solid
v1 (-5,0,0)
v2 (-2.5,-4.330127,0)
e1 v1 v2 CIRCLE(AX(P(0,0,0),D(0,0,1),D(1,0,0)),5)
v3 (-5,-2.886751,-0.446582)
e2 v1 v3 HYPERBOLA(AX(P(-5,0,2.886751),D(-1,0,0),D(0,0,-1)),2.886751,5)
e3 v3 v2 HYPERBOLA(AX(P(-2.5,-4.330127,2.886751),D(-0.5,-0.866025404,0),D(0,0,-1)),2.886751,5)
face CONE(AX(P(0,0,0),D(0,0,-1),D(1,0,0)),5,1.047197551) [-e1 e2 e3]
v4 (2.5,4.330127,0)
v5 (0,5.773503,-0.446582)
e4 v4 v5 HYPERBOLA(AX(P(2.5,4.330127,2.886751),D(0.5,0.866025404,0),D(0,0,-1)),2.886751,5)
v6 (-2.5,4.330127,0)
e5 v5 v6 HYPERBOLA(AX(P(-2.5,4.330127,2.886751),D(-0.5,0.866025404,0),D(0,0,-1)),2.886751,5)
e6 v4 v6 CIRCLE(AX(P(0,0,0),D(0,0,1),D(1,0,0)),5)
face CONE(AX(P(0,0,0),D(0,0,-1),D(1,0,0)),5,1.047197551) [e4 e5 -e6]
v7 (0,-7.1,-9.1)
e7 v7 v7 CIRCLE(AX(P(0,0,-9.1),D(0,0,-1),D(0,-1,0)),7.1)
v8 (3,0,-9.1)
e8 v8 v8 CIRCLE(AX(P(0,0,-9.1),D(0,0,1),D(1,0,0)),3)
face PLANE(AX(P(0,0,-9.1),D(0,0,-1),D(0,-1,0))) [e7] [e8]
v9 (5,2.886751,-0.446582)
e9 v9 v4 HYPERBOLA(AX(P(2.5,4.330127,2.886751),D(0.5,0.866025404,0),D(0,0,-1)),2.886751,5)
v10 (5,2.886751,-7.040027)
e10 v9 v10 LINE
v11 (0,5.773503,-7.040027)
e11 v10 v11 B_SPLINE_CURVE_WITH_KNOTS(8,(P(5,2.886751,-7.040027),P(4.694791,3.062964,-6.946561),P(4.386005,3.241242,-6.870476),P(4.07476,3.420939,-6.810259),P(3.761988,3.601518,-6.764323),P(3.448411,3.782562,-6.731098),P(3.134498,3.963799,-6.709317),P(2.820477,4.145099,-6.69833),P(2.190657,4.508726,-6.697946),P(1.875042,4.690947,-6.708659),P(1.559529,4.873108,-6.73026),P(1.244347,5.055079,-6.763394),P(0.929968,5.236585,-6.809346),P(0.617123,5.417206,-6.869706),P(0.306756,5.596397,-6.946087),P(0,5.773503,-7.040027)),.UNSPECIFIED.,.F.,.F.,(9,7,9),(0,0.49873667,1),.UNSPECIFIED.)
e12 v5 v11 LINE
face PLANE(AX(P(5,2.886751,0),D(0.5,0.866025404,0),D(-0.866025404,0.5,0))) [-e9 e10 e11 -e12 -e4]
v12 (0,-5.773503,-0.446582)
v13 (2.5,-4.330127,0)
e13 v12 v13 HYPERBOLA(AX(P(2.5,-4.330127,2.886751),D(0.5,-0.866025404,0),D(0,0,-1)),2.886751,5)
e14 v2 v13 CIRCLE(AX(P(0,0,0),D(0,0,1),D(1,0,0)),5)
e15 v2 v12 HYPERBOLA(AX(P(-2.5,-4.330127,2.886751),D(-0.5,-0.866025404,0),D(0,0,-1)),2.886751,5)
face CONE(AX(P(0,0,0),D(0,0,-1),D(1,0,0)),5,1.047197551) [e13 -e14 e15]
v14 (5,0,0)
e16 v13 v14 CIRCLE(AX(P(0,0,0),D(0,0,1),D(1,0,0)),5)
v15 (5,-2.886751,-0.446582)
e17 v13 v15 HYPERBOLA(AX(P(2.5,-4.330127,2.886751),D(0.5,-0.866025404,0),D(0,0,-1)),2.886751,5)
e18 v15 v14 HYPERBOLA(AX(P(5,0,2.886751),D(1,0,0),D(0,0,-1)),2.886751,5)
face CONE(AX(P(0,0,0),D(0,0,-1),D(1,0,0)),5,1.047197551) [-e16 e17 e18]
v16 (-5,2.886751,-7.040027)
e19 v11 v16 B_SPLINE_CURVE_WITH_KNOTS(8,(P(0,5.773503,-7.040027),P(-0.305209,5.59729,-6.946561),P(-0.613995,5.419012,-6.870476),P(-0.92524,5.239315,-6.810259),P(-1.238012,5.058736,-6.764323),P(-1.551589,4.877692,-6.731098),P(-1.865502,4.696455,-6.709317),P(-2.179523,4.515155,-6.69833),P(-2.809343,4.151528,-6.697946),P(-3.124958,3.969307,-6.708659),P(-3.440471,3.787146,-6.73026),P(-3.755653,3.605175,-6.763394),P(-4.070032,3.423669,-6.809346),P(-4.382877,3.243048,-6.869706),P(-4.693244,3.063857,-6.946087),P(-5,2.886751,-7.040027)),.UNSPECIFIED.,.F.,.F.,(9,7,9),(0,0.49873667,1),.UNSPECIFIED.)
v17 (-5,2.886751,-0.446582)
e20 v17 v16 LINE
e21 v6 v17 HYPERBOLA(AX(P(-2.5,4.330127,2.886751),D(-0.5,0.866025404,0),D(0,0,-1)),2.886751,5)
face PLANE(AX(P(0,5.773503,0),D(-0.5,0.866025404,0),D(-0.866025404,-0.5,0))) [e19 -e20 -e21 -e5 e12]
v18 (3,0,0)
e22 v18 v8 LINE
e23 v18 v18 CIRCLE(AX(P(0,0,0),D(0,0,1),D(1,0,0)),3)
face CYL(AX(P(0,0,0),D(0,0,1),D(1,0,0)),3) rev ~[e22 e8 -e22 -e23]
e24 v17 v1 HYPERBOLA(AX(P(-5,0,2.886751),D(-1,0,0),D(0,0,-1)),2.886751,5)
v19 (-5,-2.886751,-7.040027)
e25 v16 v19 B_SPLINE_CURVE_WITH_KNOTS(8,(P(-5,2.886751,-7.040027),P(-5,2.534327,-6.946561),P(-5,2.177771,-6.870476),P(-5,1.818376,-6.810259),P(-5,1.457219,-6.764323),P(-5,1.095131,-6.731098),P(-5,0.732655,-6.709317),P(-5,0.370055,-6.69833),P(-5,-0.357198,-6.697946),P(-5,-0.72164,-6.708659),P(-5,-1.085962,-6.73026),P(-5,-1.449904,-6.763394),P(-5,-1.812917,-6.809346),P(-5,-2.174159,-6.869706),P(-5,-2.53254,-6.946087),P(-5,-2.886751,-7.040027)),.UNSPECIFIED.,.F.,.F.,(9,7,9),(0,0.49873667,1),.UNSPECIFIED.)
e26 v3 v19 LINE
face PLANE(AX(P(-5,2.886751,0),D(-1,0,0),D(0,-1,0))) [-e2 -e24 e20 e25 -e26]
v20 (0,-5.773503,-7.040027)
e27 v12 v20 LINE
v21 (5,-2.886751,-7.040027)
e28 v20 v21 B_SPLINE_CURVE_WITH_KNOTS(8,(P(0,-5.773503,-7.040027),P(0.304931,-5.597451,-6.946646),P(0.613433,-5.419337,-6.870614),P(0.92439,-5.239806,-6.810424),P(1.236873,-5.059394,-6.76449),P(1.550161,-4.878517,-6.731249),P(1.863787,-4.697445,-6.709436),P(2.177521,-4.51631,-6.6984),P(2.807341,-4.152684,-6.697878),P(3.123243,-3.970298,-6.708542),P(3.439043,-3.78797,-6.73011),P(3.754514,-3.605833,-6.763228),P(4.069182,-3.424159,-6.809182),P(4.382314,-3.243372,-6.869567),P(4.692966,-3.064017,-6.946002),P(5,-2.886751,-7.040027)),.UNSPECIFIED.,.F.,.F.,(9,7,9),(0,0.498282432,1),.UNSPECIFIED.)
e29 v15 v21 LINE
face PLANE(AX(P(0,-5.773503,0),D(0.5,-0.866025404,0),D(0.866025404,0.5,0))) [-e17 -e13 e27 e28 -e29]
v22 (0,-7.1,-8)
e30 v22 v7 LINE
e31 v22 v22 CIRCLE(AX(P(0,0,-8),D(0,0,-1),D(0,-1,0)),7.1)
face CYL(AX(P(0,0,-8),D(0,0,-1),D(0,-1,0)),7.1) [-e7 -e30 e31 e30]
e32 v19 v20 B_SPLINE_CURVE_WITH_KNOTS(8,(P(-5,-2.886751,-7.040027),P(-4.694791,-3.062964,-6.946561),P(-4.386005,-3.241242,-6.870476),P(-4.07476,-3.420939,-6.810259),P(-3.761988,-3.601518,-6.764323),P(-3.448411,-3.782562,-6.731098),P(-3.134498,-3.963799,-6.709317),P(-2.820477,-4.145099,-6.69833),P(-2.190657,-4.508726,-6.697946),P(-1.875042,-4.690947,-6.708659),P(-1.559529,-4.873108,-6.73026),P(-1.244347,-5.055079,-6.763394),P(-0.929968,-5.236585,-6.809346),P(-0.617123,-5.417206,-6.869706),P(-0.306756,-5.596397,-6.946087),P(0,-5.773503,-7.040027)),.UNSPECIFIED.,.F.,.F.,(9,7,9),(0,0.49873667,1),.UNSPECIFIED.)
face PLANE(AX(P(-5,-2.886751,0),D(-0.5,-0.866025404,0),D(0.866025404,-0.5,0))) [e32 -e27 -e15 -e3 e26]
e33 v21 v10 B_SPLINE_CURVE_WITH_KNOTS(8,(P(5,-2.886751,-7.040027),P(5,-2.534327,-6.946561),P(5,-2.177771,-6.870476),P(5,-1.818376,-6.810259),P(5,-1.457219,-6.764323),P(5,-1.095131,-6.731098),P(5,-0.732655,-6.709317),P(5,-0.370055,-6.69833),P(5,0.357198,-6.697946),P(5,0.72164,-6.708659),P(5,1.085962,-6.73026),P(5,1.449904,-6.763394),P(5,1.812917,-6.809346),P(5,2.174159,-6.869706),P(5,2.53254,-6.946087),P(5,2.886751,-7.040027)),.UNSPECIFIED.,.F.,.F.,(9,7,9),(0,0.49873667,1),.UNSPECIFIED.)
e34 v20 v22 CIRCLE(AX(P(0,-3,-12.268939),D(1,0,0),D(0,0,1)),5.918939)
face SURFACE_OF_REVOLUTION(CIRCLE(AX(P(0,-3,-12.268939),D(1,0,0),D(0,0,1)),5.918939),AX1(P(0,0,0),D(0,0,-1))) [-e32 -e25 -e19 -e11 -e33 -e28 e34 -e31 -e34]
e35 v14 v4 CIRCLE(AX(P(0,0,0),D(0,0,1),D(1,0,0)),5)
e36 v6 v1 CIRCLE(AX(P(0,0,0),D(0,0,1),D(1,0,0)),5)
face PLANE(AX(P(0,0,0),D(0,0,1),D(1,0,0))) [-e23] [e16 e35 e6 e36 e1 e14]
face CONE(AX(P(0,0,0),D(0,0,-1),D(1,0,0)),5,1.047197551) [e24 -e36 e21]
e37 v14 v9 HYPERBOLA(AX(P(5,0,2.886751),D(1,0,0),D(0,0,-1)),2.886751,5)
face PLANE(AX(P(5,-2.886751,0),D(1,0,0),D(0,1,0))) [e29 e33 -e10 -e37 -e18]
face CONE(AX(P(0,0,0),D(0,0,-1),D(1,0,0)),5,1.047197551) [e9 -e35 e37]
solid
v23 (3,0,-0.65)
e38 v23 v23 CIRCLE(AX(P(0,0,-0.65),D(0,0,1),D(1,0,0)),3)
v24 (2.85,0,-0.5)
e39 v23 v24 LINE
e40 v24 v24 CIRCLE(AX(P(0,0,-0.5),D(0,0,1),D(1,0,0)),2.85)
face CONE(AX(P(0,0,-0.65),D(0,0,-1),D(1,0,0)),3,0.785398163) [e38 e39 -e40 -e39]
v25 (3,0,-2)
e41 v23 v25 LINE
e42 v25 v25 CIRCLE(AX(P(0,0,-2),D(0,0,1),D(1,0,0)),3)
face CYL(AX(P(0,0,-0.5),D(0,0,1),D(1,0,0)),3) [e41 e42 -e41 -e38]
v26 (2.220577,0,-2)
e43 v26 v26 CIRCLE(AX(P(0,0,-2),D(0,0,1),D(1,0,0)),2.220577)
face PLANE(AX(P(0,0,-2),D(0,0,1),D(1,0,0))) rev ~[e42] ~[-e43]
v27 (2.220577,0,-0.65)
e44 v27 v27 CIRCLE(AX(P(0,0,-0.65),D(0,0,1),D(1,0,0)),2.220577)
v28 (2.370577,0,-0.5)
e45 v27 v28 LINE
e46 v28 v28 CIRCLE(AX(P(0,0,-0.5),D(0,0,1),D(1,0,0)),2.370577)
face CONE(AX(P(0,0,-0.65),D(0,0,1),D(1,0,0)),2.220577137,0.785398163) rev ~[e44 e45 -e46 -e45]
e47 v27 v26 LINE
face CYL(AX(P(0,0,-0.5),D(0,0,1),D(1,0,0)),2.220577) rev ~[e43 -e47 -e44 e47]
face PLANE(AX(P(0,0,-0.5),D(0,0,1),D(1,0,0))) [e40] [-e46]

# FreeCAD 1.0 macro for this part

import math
import FreeCAD as App
import Part
import Sketcher
from FreeCAD import Vector
Q = App.Units.Quantity


def edges_at(feature, points):
    """Names of the edges that pass closest to the given points."""
    edges = feature.Shape.Edges
    near = lambda p: min(range(len(edges)), key=lambda i: edges[i].distToShape(Part.Vertex(*p))[0])
    return sorted({f"Edge{near(p) + 1}" for p in points})


def faces_at(feature, points):
    """Names of the faces that lie closest to the given points."""
    faces = feature.Shape.Faces
    near = lambda p: min(range(len(faces)), key=lambda i: faces[i].distToShape(Part.Vertex(*p))[0])
    return sorted({f"Face{near(p) + 1}" for p in points})


def add_polygon(sketch, points):
    """Adds a closed chain of lines whose ends are joined by coincident constraints."""
    first, n = sketch.GeometryCount, len(points)
    for a, b in zip(points, points[1:] + points[:1]):
        sketch.addGeometry(Part.LineSegment(App.Vector(*a, 0), App.Vector(*b, 0)), False)
    for i in range(n):
        sketch.addConstraint(Sketcher.Constraint("Coincident", first + i, 2, first + (i + 1) % n, 1))

doc = App.newDocument("Part")
params = doc.addObject("Spreadsheet::Sheet", "Params")
for row, (alias, value) in enumerate([
    ("sketch1_diameter", "6 mm"),
    ("pad1_length", "9.1 mm"),
    ("sketch2_diameter", "10 mm"),
    ("pad2_length", "12.880376 mm"),
    ("draft_angle", "60 deg"),
    ("sketch3_width", "4.1 mm"),
    ("sketch3_height", "1.1 mm"),
    ("sketch3_height2", "2.75 mm"),
    ("revolution_angle", "360 deg"),
    ("sketch4_diameter", "6 mm"),
    ("pad3_length", "1.5 mm"),
    ("chamfer_size", "0.15 mm"),
], start=1):
    params.set(f"A{row}", alias)
    params.set(f"B{row}", "=" + value)
    params.setAlias(f"B{row}", alias)

body = doc.addObject("PartDesign::Body", "Body")

# Sketch on XY plane
sketch1 = doc.addObject("Sketcher::SketchObject", "Sketch")
body.addObject(sketch1)
sketch1.AttachmentSupport = (doc.XY_Plane, [""])
sketch1.MapMode = "FlatFace"
add_polygon(sketch1, [(0, 5.8), (-5, 2.9), (-5, -2.9), (0, -5.8), (5, -2.9), (5, 2.9)])  # lines 0-5
sketch1.addGeometry(Part.Circle(Vector(0, 0, 0), Vector(0, 0, 1), 3), False)  # 6
sketch1.addConstraint(Sketcher.Constraint("Vertical", 1))
sketch1.addConstraint(Sketcher.Constraint("Vertical", 4))
sketch1.addConstraint(Sketcher.Constraint("Coincident", 6, 3, -1, 1))
sketch1.addConstraint(Sketcher.Constraint("Symmetric", 0, 2, 3, 2, -1, 1))
sketch1.addConstraint(Sketcher.Constraint("Symmetric", 2, 2, 5, 2, -1, 1))
sketch1.addConstraint(Sketcher.Constraint("PointOnObject", 2, 2, -2))
sketch1.addConstraint(Sketcher.Constraint("Parallel", 2, 5))
sketch1.addConstraint(Sketcher.Constraint("Horizontal", 1, 2, 3, 2))
sketch1.addConstraint(Sketcher.Constraint("Diameter", 6, 6.0))
sketch1.addConstraint(Sketcher.Constraint("Angle", 0, Q("-150 deg")))
sketch1.addConstraint(Sketcher.Constraint("DistanceX", 0, 2, -1, 1, 5.0))
sketch1.addConstraint(Sketcher.Constraint("DistanceY", 1, 2, 1, 1, 5.773503))
sketch1.setExpression("Constraints[14]", "Params.sketch1_diameter")
pad1 = doc.addObject("PartDesign::Pad", "Pad")
body.addObject(pad1)
pad1.Profile = sketch1
pad1.setExpression("Length", "Params.pad1_length")
pad1.Reversed = True
body2 = doc.addObject("PartDesign::Body", "Body001")

# Sketch on XY plane
sketch2 = doc.addObject("Sketcher::SketchObject", "Sketch001")
body2.addObject(sketch2)
sketch2.AttachmentSupport = (doc.getObject("XY_Plane001"), [""])
sketch2.MapMode = "FlatFace"
add_polygon(sketch2, [(-30, 31), (-30, -31), (30, -31), (30, 31)])  # lines 0-3
sketch2.addGeometry(Part.Circle(Vector(0, 0, 0), Vector(0, 0, 1), 5), False)  # 4
sketch2.addConstraint(Sketcher.Constraint("Vertical", 0))
sketch2.addConstraint(Sketcher.Constraint("Horizontal", 1))
sketch2.addConstraint(Sketcher.Constraint("Vertical", 2))
sketch2.addConstraint(Sketcher.Constraint("Horizontal", 3))
sketch2.addConstraint(Sketcher.Constraint("Coincident", 4, 3, -1, 1))
sketch2.addConstraint(Sketcher.Constraint("Symmetric", 0, 2, 2, 2, -1, 1))
sketch2.addConstraint(Sketcher.Constraint("Diameter", 4, 10.0))
sketch2.addConstraint(Sketcher.Constraint("DistanceX", 1, 1, 1, 2, 60.176))
sketch2.addConstraint(Sketcher.Constraint("DistanceY", 0, 2, 0, 1, 61.724))
sketch2.setExpression("Constraints[10]", "Params.sketch2_diameter")
pad2 = doc.addObject("PartDesign::Pad", "Pad001")
body2.addObject(pad2)
pad2.Profile = sketch2
pad2.setExpression("Length", "Params.pad2_length")
pad2.Reversed = True
doc.recompute()

draft = doc.addObject("PartDesign::Draft", "Draft")
body2.addObject(draft)
draft.Base = (pad2, faces_at(pad2, [
    (0, -30.862, -6.44),
    (30.088, 0, -6.44),
    (0, 30.862, -6.44),
    (-30.088, 0, -6.44),
    (-5, 0, -6.44),
]))
draft.NeutralPlane = (doc.getObject("XY_Plane001"), [""])
draft.setExpression("Angle", "Params.draft_angle")
draft.Reversed = True
doc.recompute()

boolean = doc.addObject("PartDesign::Boolean", "Boolean")
body.addObject(boolean)
boolean.Type = "Cut"
boolean.addObjects([body2])

# Sketch on YZ plane
sketch3 = doc.addObject("Sketcher::SketchObject", "Sketch002")
body.addObject(sketch3)
sketch3.AttachmentSupport = (doc.YZ_Plane, [""])
sketch3.MapMode = "FlatFace"
sketch3.addGeometry(Part.LineSegment(Vector(3, -9.1, 0), Vector(7.1, -9.1, 0)), False)
sketch3.addGeometry(Part.LineSegment(Vector(7.1, -9.1, 0), Vector(7.1, -8, 0)), False)
sketch3.addGeometry(Part.ArcOfCircle(Part.Circle(Vector(3, -12.3, 0), Vector(0, 0, 1), 5.9), math.radians(46), math.radians(90)), False)
sketch3.addGeometry(Part.LineSegment(Vector(3, -6.3, 0), Vector(3, -9.1, 0)), False)
sketch3.addConstraint(Sketcher.Constraint("Coincident", 0, 2, 1, 1))
sketch3.addConstraint(Sketcher.Constraint("Coincident", 1, 2, 2, 1))
sketch3.addConstraint(Sketcher.Constraint("Coincident", 2, 2, 3, 1))
sketch3.addConstraint(Sketcher.Constraint("Coincident", 3, 2, 0, 1))
sketch3.addConstraint(Sketcher.Constraint("Horizontal", 0))
sketch3.addConstraint(Sketcher.Constraint("Vertical", 1))
sketch3.addConstraint(Sketcher.Constraint("Vertical", 3))
sketch3.addConstraint(Sketcher.Constraint("DistanceX", 0, 1, 0, 2, 4.1))
sketch3.addConstraint(Sketcher.Constraint("DistanceY", 1, 1, 1, 2, 1.1))
sketch3.addConstraint(Sketcher.Constraint("DistanceX", -1, 1, 2, 3, 3.0))
sketch3.addConstraint(Sketcher.Constraint("DistanceY", 1, 2, -1, 1, 8.0))
sketch3.addConstraint(Sketcher.Constraint("DistanceX", -1, 1, 2, 2, 3.0))
sketch3.addConstraint(Sketcher.Constraint("DistanceY", 3, 2, 3, 1, 2.75))
sketch3.setExpression("Constraints[7]", "Params.sketch3_width")
sketch3.setExpression("Constraints[8]", "Params.sketch3_height")
sketch3.setExpression("Constraints[12]", "Params.sketch3_height2")
revolution = doc.addObject("PartDesign::Revolution", "Revolution")
body.addObject(revolution)
revolution.Profile = sketch3
revolution.ReferenceAxis = (sketch3, ["V_Axis"])
revolution.setExpression("Angle", "Params.revolution_angle")
body3 = doc.addObject("PartDesign::Body", "Body002")

# Sketch on XY plane
sketch4 = doc.addObject("Sketcher::SketchObject", "Sketch003")
body3.addObject(sketch4)
sketch4.AttachmentSupport = (doc.getObject("XY_Plane002"), [""])
sketch4.MapMode = "FlatFace"
sketch4.AttachmentOffset = App.Placement(Vector(0, 0, -0.5), App.Rotation())
sketch4.addGeometry(Part.Circle(Vector(0, 0, 0), Vector(0, 0, 1), 3), False)
sketch4.addGeometry(Part.Circle(Vector(0, 0, 0), Vector(0, 0, 1), 2.2), False)
sketch4.addConstraint(Sketcher.Constraint("Coincident", 0, 3, -1, 1))
sketch4.addConstraint(Sketcher.Constraint("Coincident", 1, 3, -1, 1))
sketch4.addConstraint(Sketcher.Constraint("Diameter", 0, 6.0))
sketch4.addConstraint(Sketcher.Constraint("Diameter", 1, 4.441154))
sketch4.setExpression("Constraints[2]", "Params.sketch4_diameter")
pad3 = doc.addObject("PartDesign::Pad", "Pad002")
body3.addObject(pad3)
pad3.Profile = sketch4
pad3.setExpression("Length", "Params.pad3_length")
pad3.Reversed = True
doc.recompute()

chamfer = doc.addObject("PartDesign::Chamfer", "Chamfer")
body3.addObject(chamfer)
chamfer.Base = (pad3, edges_at(pad3, [(-3, 0, -0.5), (-2.221, 0, -0.5)]))
chamfer.setExpression("Size", "Params.chamfer_size")

doc.recompute()
